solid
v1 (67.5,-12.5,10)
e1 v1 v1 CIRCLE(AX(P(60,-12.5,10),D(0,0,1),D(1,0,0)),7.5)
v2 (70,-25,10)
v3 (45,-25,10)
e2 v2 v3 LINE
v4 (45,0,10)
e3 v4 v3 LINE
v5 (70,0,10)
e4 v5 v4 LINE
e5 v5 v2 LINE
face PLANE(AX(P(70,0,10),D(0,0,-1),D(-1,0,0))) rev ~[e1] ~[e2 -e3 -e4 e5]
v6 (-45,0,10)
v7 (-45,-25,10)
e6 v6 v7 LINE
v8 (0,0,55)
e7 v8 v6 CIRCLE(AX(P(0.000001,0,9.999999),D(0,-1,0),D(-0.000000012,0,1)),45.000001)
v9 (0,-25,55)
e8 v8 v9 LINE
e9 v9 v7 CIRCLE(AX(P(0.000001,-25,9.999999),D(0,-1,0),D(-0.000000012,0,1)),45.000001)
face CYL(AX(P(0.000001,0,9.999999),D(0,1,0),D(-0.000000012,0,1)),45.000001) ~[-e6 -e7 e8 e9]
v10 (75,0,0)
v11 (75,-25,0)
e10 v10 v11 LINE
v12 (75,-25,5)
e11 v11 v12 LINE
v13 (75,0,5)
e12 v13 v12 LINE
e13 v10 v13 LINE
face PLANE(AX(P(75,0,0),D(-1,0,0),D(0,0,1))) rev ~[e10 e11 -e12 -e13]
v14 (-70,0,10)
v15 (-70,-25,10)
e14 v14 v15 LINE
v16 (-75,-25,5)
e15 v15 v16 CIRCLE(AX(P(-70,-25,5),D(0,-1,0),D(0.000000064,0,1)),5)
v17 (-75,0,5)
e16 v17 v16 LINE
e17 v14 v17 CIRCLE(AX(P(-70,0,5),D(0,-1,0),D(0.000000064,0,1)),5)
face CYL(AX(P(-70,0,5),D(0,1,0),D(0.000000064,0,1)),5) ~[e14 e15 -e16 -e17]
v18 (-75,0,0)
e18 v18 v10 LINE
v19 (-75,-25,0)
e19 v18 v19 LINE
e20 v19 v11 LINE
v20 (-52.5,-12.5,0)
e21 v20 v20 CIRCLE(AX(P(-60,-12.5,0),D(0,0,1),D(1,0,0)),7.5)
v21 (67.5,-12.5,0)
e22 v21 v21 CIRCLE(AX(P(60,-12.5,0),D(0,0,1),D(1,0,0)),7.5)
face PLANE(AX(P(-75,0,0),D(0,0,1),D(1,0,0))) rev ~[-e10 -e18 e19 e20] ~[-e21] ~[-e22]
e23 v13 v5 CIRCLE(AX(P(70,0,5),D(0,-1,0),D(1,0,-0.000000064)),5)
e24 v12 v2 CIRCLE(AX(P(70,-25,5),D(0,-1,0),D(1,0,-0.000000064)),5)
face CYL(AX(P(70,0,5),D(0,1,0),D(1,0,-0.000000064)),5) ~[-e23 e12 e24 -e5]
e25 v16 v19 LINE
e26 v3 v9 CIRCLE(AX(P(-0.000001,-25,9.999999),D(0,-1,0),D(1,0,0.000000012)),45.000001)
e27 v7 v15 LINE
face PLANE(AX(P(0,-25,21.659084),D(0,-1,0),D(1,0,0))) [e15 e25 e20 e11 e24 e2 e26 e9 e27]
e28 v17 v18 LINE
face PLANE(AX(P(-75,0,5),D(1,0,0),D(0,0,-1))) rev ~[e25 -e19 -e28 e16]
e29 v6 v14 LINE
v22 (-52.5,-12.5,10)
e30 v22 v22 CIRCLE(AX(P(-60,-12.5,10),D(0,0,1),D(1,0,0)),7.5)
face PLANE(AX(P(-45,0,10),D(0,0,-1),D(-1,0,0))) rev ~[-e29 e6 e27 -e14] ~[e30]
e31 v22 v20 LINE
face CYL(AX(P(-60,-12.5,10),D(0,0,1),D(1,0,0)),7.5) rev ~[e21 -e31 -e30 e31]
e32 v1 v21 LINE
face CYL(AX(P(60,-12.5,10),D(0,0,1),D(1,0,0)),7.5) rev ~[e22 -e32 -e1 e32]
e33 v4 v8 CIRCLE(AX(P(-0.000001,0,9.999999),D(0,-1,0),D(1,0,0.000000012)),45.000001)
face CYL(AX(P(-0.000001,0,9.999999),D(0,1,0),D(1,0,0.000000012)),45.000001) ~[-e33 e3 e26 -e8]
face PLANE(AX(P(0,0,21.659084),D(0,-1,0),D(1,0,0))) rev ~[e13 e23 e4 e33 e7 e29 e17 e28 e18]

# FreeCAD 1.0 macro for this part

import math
import FreeCAD as App
import Part
import Sketcher

V = App.Vector

doc = App.newDocument("Part")
body = doc.addObject("PartDesign::Body", "Body")

# Sketch on XZ plane
sketch1 = doc.addObject("Sketcher::SketchObject", "Sketch")
body.addObject(sketch1)
sketch1.AttachmentSupport = (doc.XZ_Plane, [""])
sketch1.MapMode = "FlatFace"
sketch1.addGeometry([
    Part.ArcOfCircle(Part.Circle(V(0, 10, 0), V(0, 0, 1), 45), math.radians(0), math.radians(90)),  # 0
    Part.ArcOfCircle(Part.Circle(V(0, 10, 0), V(0, 0, 1), 45), math.radians(90), math.radians(180)),  # 1
    Part.LineSegment(V(-45, 10, 0), V(-70, 10, 0)),  # 2
    Part.ArcOfCircle(Part.Circle(V(-70, 5, 0), V(0, 0, 1), 5), math.radians(90), math.radians(180)),  # 3
    Part.LineSegment(V(-75, 5, 0), V(-75, 0, 0)),  # 4
    Part.LineSegment(V(-75, 0, 0), V(75, 0, 0)),  # 5
    Part.LineSegment(V(75, 0, 0), V(75, 5, 0)),  # 6
    Part.ArcOfCircle(Part.Circle(V(70, 5, 0), V(0, 0, 1), 5), math.radians(0), math.radians(90)),  # 7
    Part.LineSegment(V(70, 10, 0), V(45, 10, 0)),  # 8
], False)
sketch1.addConstraint([
    Sketcher.Constraint("Tangent", 0, 2, 1, 1),
    Sketcher.Constraint("Coincident", 1, 2, 2, 1),
    Sketcher.Constraint("Tangent", 2, 2, 3, 1),
    Sketcher.Constraint("Tangent", 3, 2, 4, 1),
    Sketcher.Constraint("Coincident", 4, 2, 5, 1),
    Sketcher.Constraint("Coincident", 5, 2, 6, 1),
    Sketcher.Constraint("Tangent", 6, 2, 7, 1),
    Sketcher.Constraint("Tangent", 7, 2, 8, 1),
    Sketcher.Constraint("Coincident", 8, 2, 0, 1),
    Sketcher.Constraint("Horizontal", 2),
    Sketcher.Constraint("Vertical", 4),
    Sketcher.Constraint("Horizontal", 5),
    Sketcher.Constraint("Vertical", 6),
    Sketcher.Constraint("Horizontal", 8),
    Sketcher.Constraint("Equal", 0, 1),
    Sketcher.Constraint("Equal", 3, 7),
    Sketcher.Constraint("Symmetric", 4, 2, 5, 2, -1, 1),
    Sketcher.Constraint("Symmetric", 1, 2, 8, 2, -2),
    Sketcher.Constraint("PointOnObject", 0, 2, -2),
    Sketcher.Constraint("Horizontal", 0, 3, 1, 2),
    Sketcher.Constraint("Radius", 0, 45.000001),
    Sketcher.Constraint("Radius", 3, 5.0),
    Sketcher.Constraint("DistanceX", 2, 2, 2, 1, 25.0),
    Sketcher.Constraint("DistanceY", 4, 2, 4, 1, 5.0),
])
pad1 = doc.addObject("PartDesign::Pad", "Pad")
body.addObject(pad1)
pad1.Profile = sketch1
pad1.Length = 25

# Sketch on XY plane
sketch2 = doc.addObject("Sketcher::SketchObject", "Sketch001")
body.addObject(sketch2)
sketch2.AttachmentSupport = (doc.XY_Plane, [""])
sketch2.MapMode = "FlatFace"
sketch2.AttachmentOffset = App.Placement(V(0, 0, 10), App.Rotation())
sketch2.addGeometry([
    Part.Circle(V(-60, -12, 0), V(0, 0, 1), 8),
    Part.Circle(V(60, -12, 0), V(0, 0, 1), 8),
], False)
sketch2.addConstraint([
    Sketcher.Constraint("Equal", 0, 1),
    Sketcher.Constraint("Symmetric", 0, 3, 1, 3, -2),
    Sketcher.Constraint("Diameter", 0, 15.0),
    Sketcher.Constraint("DistanceX", 0, 3, -1, 1, 60.0),
    Sketcher.Constraint("DistanceY", 0, 3, -1, 1, 12.5),
])
pocket1 = doc.addObject("PartDesign::Pocket", "Pocket")
body.addObject(pocket1)
pocket1.Profile = sketch2
pocket1.Type = "ThroughAll"

doc.recompute()
